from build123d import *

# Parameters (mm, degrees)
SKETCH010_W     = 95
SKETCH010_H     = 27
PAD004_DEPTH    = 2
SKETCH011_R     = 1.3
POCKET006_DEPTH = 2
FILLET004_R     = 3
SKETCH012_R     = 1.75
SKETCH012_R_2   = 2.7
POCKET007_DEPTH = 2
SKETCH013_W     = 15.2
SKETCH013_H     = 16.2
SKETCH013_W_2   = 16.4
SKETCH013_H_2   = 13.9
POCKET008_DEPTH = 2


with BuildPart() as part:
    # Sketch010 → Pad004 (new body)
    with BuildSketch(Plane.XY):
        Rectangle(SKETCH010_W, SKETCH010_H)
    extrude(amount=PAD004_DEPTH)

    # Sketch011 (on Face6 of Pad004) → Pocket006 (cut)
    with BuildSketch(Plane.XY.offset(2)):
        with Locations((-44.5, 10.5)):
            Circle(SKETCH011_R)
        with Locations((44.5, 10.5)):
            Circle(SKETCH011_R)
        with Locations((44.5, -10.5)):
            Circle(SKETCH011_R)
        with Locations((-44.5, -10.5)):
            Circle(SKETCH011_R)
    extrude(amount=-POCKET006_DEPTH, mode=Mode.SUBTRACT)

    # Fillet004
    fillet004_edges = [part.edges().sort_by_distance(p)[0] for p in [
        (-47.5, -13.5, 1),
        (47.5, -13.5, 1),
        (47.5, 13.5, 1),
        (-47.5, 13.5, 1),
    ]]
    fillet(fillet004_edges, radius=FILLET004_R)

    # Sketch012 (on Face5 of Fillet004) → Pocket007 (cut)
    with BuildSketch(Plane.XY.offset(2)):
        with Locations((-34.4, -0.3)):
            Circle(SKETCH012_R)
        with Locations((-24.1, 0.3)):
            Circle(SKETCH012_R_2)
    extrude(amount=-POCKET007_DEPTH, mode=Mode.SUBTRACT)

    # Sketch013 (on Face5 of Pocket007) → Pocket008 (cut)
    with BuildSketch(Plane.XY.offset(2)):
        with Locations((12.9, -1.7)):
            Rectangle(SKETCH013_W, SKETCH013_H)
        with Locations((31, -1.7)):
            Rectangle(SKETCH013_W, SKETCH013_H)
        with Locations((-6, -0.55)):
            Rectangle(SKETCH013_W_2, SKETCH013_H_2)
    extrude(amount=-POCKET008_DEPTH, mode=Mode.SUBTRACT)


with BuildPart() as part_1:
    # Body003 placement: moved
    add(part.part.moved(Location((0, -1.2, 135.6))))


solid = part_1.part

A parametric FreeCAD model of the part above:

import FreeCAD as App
import Part
import Sketcher
from FreeCAD import Vector


def edges_at(feature, points):
    """Names of the edges that pass closest to the given points."""
    edges = feature.Shape.Edges
    near = lambda p: min(range(len(edges)), key=lambda i: edges[i].distToShape(Part.Vertex(*p))[0])
    return sorted({f"Edge{near(p) + 1}" for p in points})

doc = App.newDocument("Part")
body = doc.addObject("PartDesign::Body", "Body")

sketch1 = body.newObject("Sketcher::SketchObject", "Sketch")
sketch1.AttachmentSupport = (doc.getObject("XY_Plane"), [""])
sketch1.MapMode = "FlatFace"
sketch1.addGeometry([
    Part.LineSegment(Vector(-48, 14, 0), Vector(-48, -14, 0)),
    Part.LineSegment(Vector(-48, -14, 0), Vector(48, -14, 0)),
    Part.LineSegment(Vector(48, -14, 0), Vector(48, 14, 0)),
    Part.LineSegment(Vector(48, 14, 0), Vector(-48, 14, 0)),
], False)
sketch1.addConstraint([
    Sketcher.Constraint("Coincident", 0, 2, 1, 1),
    Sketcher.Constraint("Coincident", 1, 2, 2, 1),
    Sketcher.Constraint("Coincident", 2, 2, 3, 1),
    Sketcher.Constraint("Coincident", 3, 2, 0, 1),
    Sketcher.Constraint("Vertical", 0),
    Sketcher.Constraint("Horizontal", 1),
    Sketcher.Constraint("Vertical", 2),
    Sketcher.Constraint("Horizontal", 3),
    Sketcher.Constraint("Symmetric", 0, 2, 2, 2, -1, 1),
    Sketcher.Constraint("DistanceX", 1, 1, 1, 2, 95.0),
    Sketcher.Constraint("DistanceY", 0, 2, 0, 1, 27.0),
])
pad1 = body.newObject("PartDesign::Pad", "Pad")
pad1.Profile = sketch1
pad1.Length = 2

sketch2 = body.newObject("Sketcher::SketchObject", "Sketch001")
sketch2.AttachmentSupport = (doc.getObject("XY_Plane"), [""])
sketch2.MapMode = "FlatFace"
sketch2.AttachmentOffset = App.Placement(Vector(0, 0, 2), App.Rotation())
sketch2.addGeometry([
    Part.Circle(Vector(-44.5, 10.5, 0), Vector(0, 0, 1), 1.3),
    Part.Circle(Vector(44.5, 10.5, 0), Vector(0, 0, 1), 1.3),
    Part.Circle(Vector(44.5, -10.5, 0), Vector(0, 0, 1), 1.3),
    Part.Circle(Vector(-44.5, -10.5, 0), Vector(0, 0, 1), 1.3),
], False)
sketch2.addConstraint([
    Sketcher.Constraint("Equal", 0, 1),
    Sketcher.Constraint("Equal", 1, 2),
    Sketcher.Constraint("Equal", 2, 3),
    Sketcher.Constraint("Symmetric", 0, 3, 2, 3, -1, 1),
    Sketcher.Constraint("Symmetric", 1, 3, 3, 3, -1, 1),
    Sketcher.Constraint("Symmetric", 0, 3, 1, 3, -2),
    Sketcher.Constraint("Diameter", 0, 2.6),
    Sketcher.Constraint("DistanceX", 0, 3, 1, 3, 89.0),
    Sketcher.Constraint("DistanceY", 2, 3, 1, 3, 21.0),
])
pocket1 = body.newObject("PartDesign::Pocket", "Pocket")
pocket1.Profile = sketch2
pocket1.Length = 2
doc.recompute()

fillet = body.newObject("PartDesign::Fillet", "Fillet")
fillet.Base = (pocket1, edges_at(pocket1, [
    (-47.5, -13.5, 1),
    (47.5, -13.5, 1),
    (47.5, 13.5, 1),
    (-47.5, 13.5, 1),
]))
fillet.Radius = 3

sketch3 = body.newObject("Sketcher::SketchObject", "Sketch002")
sketch3.AttachmentSupport = (doc.getObject("XY_Plane"), [""])
sketch3.MapMode = "FlatFace"
sketch3.AttachmentOffset = App.Placement(Vector(0, 0, 2), App.Rotation())
sketch3.addGeometry([
    Part.Circle(Vector(-34.4, -0.3, 0), Vector(0, 0, 1), 1.8),
    Part.Circle(Vector(-24.1, 0.3, 0), Vector(0, 0, 1), 2.7),
], False)
sketch3.addConstraint([
    Sketcher.Constraint("Diameter", 0, 3.5),
    Sketcher.Constraint("Diameter", 1, 5.4),
    Sketcher.Constraint("DistanceX", 0, 3, -1, 1, 34.4),
    Sketcher.Constraint("DistanceY", 0, 3, -1, 1, 0.3),
    Sketcher.Constraint("DistanceX", 1, 3, -1, 1, 24.1),
    Sketcher.Constraint("DistanceY", -1, 1, 1, 3, 0.3),
])
pocket2 = body.newObject("PartDesign::Pocket", "Pocket001")
pocket2.Profile = sketch3
pocket2.Length = 2

sketch4 = body.newObject("Sketcher::SketchObject", "Sketch003")
sketch4.AttachmentSupport = (doc.getObject("XY_Plane"), [""])
sketch4.MapMode = "FlatFace"
sketch4.AttachmentOffset = App.Placement(Vector(0, 0, 2), App.Rotation())
sketch4.addGeometry([
    Part.LineSegment(Vector(5, 6, 0), Vector(5, -10, 0)),
    Part.LineSegment(Vector(5, -10, 0), Vector(20, -10, 0)),
    Part.LineSegment(Vector(20, -10, 0), Vector(20, 6, 0)),
    Part.LineSegment(Vector(20, 6, 0), Vector(5, 6, 0)),
    Part.LineSegment(Vector(23, 6, 0), Vector(23, -10, 0)),
    Part.LineSegment(Vector(23, -10, 0), Vector(39, -10, 0)),
    Part.LineSegment(Vector(39, -10, 0), Vector(39, 6, 0)),
    Part.LineSegment(Vector(39, 6, 0), Vector(23, 6, 0)),
    Part.LineSegment(Vector(-14, 6, 0), Vector(-14, -8, 0)),
    Part.LineSegment(Vector(-14, -8, 0), Vector(2, -8, 0)),
    Part.LineSegment(Vector(2, -8, 0), Vector(2, 6, 0)),
    Part.LineSegment(Vector(2, 6, 0), Vector(-14, 6, 0)),
], False)
sketch4.addConstraint([
    Sketcher.Constraint("Coincident", 0, 2, 1, 1),
    Sketcher.Constraint("Coincident", 1, 2, 2, 1),
    Sketcher.Constraint("Coincident", 2, 2, 3, 1),
    Sketcher.Constraint("Coincident", 3, 2, 0, 1),
    Sketcher.Constraint("Coincident", 4, 2, 5, 1),
    Sketcher.Constraint("Coincident", 5, 2, 6, 1),
    Sketcher.Constraint("Coincident", 6, 2, 7, 1),
    Sketcher.Constraint("Coincident", 7, 2, 4, 1),
    Sketcher.Constraint("Coincident", 8, 2, 9, 1),
    Sketcher.Constraint("Coincident", 9, 2, 10, 1),
    Sketcher.Constraint("Coincident", 10, 2, 11, 1),
    Sketcher.Constraint("Coincident", 11, 2, 8, 1),
    Sketcher.Constraint("Vertical", 0),
    Sketcher.Constraint("Horizontal", 1),
    Sketcher.Constraint("Vertical", 2),
    Sketcher.Constraint("Horizontal", 3),
    Sketcher.Constraint("Vertical", 4),
    Sketcher.Constraint("Horizontal", 5),
    Sketcher.Constraint("Vertical", 6),
    Sketcher.Constraint("Horizontal", 7),
    Sketcher.Constraint("Vertical", 8),
    Sketcher.Constraint("Horizontal", 9),
    Sketcher.Constraint("Vertical", 10),
    Sketcher.Constraint("Horizontal", 11),
    Sketcher.Constraint("Horizontal", 1, 2, 4, 2),
    Sketcher.Constraint("Horizontal", 3, 2, 6, 2),
    Sketcher.Constraint("Horizontal", 7, 2, 10, 2),
    Sketcher.Constraint("Equal", 3, 5),
    Sketcher.Constraint("DistanceX", 1, 1, 1, 2, 15.2),
    Sketcher.Constraint("DistanceX", 9, 1, 9, 2, 16.4),
    Sketcher.Constraint("DistanceY", 0, 2, 0, 1, 16.2),
    Sketcher.Constraint("DistanceY", 8, 2, 8, 1, 13.9),
    Sketcher.Constraint("DistanceX", -1, 1, 0, 2, 5.3),
    Sketcher.Constraint("DistanceY", 0, 2, -1, 1, 9.8),
    Sketcher.Constraint("DistanceX", -1, 1, 4, 2, 23.4),
    Sketcher.Constraint("DistanceX", 8, 2, -1, 1, 14.2),
])
pocket3 = body.newObject("PartDesign::Pocket", "Pocket002")
pocket3.Profile = sketch4
pocket3.Length = 2
body2 = doc.addObject("PartDesign::Body", "Body001")
doc.recompute()

body.Placement = App.Placement(Vector(0, -1.2, 135.6), App.Rotation(Vector(0, 0, 1), 0))
boolean = body2.newObject("PartDesign::Boolean", "Boolean")
boolean.Type = "Fuse"
boolean.addObjects([body])

doc.recompute()
